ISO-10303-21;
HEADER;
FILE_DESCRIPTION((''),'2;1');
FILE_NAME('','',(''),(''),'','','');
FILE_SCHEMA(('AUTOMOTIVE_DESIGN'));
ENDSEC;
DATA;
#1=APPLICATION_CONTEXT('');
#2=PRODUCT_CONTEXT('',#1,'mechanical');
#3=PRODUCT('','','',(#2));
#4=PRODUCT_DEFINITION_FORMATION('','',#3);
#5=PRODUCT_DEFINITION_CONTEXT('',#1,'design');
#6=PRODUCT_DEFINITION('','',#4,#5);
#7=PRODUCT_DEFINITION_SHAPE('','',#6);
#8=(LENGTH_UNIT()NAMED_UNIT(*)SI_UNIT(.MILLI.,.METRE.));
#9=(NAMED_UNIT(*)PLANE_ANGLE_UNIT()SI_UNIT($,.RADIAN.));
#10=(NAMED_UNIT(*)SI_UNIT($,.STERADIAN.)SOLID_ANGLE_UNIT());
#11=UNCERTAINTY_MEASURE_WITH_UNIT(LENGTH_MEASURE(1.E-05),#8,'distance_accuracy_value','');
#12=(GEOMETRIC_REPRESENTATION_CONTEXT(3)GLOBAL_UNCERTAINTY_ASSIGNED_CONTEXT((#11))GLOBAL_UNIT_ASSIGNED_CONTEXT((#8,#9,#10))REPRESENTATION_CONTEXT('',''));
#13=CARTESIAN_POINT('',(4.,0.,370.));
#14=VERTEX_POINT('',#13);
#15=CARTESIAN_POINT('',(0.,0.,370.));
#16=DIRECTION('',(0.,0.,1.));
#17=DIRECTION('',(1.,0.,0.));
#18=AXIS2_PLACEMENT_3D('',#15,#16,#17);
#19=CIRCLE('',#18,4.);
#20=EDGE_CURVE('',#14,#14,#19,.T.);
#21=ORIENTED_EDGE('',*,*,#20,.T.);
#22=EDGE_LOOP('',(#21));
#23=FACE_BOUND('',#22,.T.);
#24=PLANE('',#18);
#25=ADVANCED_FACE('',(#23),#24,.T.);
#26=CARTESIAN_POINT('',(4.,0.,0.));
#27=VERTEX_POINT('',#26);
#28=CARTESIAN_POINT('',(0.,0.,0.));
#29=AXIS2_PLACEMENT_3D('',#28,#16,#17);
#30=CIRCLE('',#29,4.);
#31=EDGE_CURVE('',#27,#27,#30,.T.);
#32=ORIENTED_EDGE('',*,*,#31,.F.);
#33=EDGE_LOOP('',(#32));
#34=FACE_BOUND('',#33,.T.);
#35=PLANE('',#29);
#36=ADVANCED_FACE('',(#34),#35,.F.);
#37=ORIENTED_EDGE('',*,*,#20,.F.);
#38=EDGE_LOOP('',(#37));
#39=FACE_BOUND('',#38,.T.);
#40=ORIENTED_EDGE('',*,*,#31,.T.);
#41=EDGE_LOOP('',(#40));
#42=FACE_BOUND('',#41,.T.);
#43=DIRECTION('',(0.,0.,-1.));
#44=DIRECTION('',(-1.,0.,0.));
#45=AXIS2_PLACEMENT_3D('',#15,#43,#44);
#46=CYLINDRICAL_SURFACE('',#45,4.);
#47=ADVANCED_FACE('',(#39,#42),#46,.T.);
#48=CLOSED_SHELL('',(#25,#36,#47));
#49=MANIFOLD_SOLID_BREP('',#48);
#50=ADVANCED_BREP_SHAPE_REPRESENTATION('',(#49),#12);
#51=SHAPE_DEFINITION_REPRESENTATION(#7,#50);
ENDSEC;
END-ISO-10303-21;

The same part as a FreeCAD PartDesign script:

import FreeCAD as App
import Part
import Sketcher

V = App.Vector

doc = App.newDocument("Part")
params = doc.addObject("Spreadsheet::Sheet", "Params")
for row, (alias, value) in enumerate([
    ("sketch1_diameter", "8 mm"),
    ("pad1_length", "370 mm"),
], start=1):
    params.set(f"A{row}", alias)
    params.set(f"B{row}", "=" + value)
    params.setAlias(f"B{row}", alias)

body = doc.addObject("PartDesign::Body", "Body")

# Sketch on XY plane
sketch1 = body.newObject("Sketcher::SketchObject", "Sketch")
sketch1.AttachmentSupport = (doc.getObject("XY_Plane"), [""])
sketch1.MapMode = "FlatFace"
sketch1.addGeometry(Part.Circle(V(0, 0, 0), V(0, 0, 1), 4), False)
sketch1.addConstraint([
    Sketcher.Constraint("Coincident", 0, 3, -1, 1),
    Sketcher.Constraint("Diameter", 0, 8.0),
])
sketch1.setExpression("Constraints[1]", "Params.sketch1_diameter")
pad1 = body.newObject("PartDesign::Pad", "Pad")
pad1.Profile = sketch1
pad1.setExpression("Length", "Params.pad1_length")

doc.recompute()
